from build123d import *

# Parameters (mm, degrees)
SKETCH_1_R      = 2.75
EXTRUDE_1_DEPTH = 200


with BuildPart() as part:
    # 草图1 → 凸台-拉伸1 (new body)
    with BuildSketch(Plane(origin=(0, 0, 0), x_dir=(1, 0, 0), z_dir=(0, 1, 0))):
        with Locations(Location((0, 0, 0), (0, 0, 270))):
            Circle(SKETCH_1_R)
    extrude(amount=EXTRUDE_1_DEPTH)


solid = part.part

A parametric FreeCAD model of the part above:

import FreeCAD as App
import Part
import Sketcher
Q = App.Units.Quantity

doc = App.newDocument("Part")
params = doc.addObject("Spreadsheet::Sheet", "Params")
for row, (alias, value) in enumerate([
    ("sketch1_diameter", "5.5 mm"),
    ("pad1_length", "200 mm"),
], start=1):
    params.set(f"A{row}", alias)
    params.set(f"B{row}", "=" + value)
    params.setAlias(f"B{row}", alias)

body = doc.addObject("PartDesign::Body", "Body")

sketch1 = body.newObject("Sketcher::SketchObject", "Sketch")
sketch1.AttachmentSupport = (doc.getObject("XZ_Plane"), [""])
sketch1.MapMode = "FlatFace"
sketch1.addGeometry(Part.Circle(App.Vector(0, 0, 0), App.Vector(0, 0, 1), 2.75), False)
sketch1.addConstraint([
    Sketcher.Constraint("Coincident", 0, 3, -1, 1),
    Sketcher.Constraint("Diameter", 0, Q("5.5 mm")),
])
sketch1.setExpression("Constraints[1]", "Params.sketch1_diameter")
pad1 = body.newObject("PartDesign::Pad", "Pad")
pad1.Profile = sketch1
pad1.setExpression("Length", "Params.pad1_length")
pad1.Reversed = True

doc.recompute()
